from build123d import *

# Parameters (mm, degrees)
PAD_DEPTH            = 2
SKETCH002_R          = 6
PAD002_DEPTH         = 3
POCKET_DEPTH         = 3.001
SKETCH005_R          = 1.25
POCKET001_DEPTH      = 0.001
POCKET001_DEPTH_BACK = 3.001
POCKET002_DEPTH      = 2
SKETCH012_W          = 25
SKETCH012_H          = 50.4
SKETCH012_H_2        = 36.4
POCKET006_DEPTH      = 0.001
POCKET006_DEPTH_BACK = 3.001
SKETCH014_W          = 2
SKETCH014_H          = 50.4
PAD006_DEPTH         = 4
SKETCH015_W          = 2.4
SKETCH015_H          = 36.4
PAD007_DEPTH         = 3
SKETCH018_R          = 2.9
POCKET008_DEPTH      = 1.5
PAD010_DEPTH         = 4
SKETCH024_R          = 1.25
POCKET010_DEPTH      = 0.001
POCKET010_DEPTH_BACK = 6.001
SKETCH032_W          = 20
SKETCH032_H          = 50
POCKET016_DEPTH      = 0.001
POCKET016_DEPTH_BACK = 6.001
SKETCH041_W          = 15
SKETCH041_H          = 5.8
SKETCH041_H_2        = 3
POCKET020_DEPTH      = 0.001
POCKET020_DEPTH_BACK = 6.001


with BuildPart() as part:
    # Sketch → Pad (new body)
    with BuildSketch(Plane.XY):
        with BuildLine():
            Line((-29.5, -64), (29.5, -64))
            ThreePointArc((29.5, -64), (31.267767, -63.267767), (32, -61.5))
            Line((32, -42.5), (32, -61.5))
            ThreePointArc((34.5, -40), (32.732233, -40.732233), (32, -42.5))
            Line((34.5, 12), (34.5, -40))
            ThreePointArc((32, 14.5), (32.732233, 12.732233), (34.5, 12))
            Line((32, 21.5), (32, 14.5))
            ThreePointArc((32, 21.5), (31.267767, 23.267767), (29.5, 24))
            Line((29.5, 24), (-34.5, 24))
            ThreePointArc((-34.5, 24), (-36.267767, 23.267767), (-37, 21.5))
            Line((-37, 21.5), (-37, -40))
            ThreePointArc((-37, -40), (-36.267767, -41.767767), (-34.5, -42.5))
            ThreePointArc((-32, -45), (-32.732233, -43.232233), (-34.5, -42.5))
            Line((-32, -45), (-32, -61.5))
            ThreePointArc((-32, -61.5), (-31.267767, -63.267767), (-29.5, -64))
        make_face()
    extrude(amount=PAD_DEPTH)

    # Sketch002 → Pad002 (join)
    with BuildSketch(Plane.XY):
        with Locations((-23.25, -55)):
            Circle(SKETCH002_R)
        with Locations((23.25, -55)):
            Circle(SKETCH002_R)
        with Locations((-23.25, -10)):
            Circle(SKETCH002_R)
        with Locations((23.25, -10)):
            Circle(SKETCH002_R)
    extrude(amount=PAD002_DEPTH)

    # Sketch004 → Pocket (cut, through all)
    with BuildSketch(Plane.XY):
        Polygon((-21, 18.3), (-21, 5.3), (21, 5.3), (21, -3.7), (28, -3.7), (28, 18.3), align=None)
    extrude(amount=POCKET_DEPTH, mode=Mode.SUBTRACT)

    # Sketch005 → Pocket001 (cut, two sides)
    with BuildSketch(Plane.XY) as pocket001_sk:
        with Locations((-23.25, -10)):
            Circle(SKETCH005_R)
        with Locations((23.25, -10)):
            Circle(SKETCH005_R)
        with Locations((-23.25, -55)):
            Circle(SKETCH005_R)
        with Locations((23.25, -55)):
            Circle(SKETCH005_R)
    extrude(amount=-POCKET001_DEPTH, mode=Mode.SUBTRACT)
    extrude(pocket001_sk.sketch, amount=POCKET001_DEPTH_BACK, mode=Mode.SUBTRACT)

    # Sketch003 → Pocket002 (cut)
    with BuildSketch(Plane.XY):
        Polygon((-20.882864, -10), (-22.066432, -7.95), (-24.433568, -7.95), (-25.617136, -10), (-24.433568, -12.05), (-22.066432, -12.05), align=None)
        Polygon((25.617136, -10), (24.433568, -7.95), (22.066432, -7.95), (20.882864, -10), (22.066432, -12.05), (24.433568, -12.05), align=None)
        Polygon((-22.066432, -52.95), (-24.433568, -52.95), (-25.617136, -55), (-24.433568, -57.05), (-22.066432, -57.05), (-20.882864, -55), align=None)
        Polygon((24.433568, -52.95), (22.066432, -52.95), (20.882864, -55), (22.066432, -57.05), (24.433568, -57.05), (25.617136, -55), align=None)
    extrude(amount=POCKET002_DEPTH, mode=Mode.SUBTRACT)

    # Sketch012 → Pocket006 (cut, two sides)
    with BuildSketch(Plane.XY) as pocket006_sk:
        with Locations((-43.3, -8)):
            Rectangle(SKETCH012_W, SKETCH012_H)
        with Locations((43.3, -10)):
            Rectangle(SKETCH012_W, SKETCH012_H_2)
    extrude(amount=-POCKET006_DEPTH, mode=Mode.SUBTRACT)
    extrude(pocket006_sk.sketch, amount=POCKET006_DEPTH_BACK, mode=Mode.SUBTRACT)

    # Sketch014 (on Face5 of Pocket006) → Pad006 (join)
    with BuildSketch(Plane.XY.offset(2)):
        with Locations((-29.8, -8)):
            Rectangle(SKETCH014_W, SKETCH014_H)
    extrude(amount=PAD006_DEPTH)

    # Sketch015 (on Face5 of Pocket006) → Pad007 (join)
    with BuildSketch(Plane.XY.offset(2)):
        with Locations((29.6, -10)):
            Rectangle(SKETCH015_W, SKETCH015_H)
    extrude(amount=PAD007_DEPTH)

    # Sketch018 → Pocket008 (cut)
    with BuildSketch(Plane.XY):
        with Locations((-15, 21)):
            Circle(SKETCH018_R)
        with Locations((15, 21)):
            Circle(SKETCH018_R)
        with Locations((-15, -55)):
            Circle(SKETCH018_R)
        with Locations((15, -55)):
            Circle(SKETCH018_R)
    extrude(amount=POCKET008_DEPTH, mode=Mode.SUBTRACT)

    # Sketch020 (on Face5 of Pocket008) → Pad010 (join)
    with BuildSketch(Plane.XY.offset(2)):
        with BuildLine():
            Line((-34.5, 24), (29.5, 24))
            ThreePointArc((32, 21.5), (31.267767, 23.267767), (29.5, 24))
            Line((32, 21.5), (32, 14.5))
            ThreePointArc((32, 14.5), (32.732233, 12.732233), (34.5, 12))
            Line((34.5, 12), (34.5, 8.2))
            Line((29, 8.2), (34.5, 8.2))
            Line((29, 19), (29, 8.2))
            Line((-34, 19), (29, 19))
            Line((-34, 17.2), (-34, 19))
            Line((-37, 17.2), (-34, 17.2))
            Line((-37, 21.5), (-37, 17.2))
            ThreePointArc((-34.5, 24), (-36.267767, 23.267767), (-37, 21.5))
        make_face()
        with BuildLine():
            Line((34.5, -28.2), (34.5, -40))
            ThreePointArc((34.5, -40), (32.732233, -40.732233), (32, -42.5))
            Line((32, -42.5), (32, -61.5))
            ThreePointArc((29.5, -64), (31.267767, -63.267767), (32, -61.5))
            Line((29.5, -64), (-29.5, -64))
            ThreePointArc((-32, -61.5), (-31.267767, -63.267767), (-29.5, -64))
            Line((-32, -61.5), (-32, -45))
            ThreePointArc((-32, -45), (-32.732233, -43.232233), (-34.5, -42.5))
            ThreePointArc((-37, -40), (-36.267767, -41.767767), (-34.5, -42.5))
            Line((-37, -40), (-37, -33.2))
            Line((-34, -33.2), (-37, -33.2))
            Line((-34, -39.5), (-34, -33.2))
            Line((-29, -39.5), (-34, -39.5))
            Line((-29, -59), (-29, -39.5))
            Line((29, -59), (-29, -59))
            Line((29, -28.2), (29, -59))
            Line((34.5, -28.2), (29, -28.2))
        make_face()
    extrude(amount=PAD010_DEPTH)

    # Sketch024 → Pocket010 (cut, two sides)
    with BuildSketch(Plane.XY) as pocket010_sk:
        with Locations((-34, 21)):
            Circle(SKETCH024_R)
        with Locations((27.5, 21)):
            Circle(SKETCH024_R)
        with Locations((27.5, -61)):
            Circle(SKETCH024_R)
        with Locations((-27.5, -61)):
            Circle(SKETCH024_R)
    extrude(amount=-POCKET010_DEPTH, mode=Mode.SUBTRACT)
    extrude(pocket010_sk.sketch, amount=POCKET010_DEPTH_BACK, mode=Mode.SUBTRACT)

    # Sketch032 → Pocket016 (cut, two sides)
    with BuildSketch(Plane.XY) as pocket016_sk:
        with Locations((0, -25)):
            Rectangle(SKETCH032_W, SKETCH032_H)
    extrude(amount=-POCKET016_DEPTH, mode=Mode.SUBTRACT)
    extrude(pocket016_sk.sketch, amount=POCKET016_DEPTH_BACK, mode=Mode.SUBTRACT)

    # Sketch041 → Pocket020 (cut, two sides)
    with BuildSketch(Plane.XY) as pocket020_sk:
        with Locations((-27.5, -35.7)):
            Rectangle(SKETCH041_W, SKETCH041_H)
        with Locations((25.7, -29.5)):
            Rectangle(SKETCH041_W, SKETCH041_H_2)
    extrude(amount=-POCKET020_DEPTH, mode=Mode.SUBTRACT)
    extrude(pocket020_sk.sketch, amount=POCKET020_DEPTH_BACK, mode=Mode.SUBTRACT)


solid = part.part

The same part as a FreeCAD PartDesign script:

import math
import FreeCAD as App
import Part
import Sketcher
from FreeCAD import Vector
Q = App.Units.Quantity


def add_polygon(sketch, points):
    """Adds a closed chain of lines whose ends are joined by coincident constraints."""
    first, n = sketch.GeometryCount, len(points)
    for a, b in zip(points, points[1:] + points[:1]):
        sketch.addGeometry(Part.LineSegment(App.Vector(*a, 0), App.Vector(*b, 0)), False)
    for i in range(n):
        sketch.addConstraint(Sketcher.Constraint("Coincident", first + i, 2, first + (i + 1) % n, 1))

doc = App.newDocument("Part")
params = doc.addObject("Spreadsheet::Sheet", "Params")
for row, (alias, value) in enumerate([
    ("sketch1_radius", "2.5 mm"),
    ("sketch1_width", "59 mm"),
    ("sketch1_height", "19 mm"),
    ("sketch1_height2", "52 mm"),
    ("sketch1_height3", "7 mm"),
    ("pad1_length", "2 mm"),
    ("sketch2_diameter", "12 mm"),
    ("pad2_length", "3 mm"),
    ("sketch3_width", "42 mm"),
    ("sketch3_width2", "7 mm"),
    ("sketch3_height", "13 mm"),
    ("sketch3_height2", "9 mm"),
    ("sketch4_diameter", "2.5 mm"),
    ("pocket3_length", "2 mm"),
    ("sketch6_width", "25 mm"),
    ("sketch6_height", "50.4 mm"),
    ("sketch6_height2", "36.4 mm"),
    ("sketch7_width", "2 mm"),
    ("sketch7_height", "50.4 mm"),
    ("pad3_length", "4 mm"),
    ("sketch8_width", "2.4 mm"),
    ("sketch8_height", "36.4 mm"),
    ("pad4_length", "3 mm"),
    ("sketch9_diameter", "5.8 mm"),
    ("pocket5_length", "1.5 mm"),
    ("sketch10_radius", "2.5 mm"),
    ("sketch10_width", "64 mm"),
    ("sketch10_width2", "3 mm"),
    ("sketch10_width3", "63 mm"),
    ("sketch10_width4", "58 mm"),
    ("pad5_length", "4 mm"),
    ("sketch11_diameter", "2.5 mm"),
    ("sketch12_width", "20 mm"),
    ("sketch12_height", "50 mm"),
    ("sketch13_width", "15 mm"),
    ("sketch13_height", "3 mm"),
    ("sketch13_height2", "5.8 mm"),
], start=1):
    params.set(f"A{row}", alias)
    params.set(f"B{row}", "=" + value)
    params.setAlias(f"B{row}", alias)

body = doc.addObject("PartDesign::Body", "Body")

sketch1 = body.newObject("Sketcher::SketchObject", "Sketch")
sketch1.AttachmentSupport = (doc.getObject("XY_Plane"), [""])
sketch1.MapMode = "FlatFace"
sketch1.addGeometry([
    Part.LineSegment(Vector(-29.5, -64, 0), Vector(29.5, -64, 0)),
    Part.ArcOfCircle(Part.Circle(Vector(29.5, -61.5, 0), Vector(0, 0, 1), 2.5), math.radians(-90.000004), math.radians(0.000004)),
    Part.LineSegment(Vector(32, -61.5, 0), Vector(32, -42.5, 0)),
    Part.ArcOfCircle(Part.Circle(Vector(34.5, -42.5, 0), Vector(0, 0, 1), 2.5), math.radians(89.999996), math.radians(180.000004)),
    Part.LineSegment(Vector(34.5, -40, 0), Vector(34.5, 12, 0)),
    Part.ArcOfCircle(Part.Circle(Vector(34.5, 14.5, 0), Vector(0, 0, 1), 2.5), math.radians(179.999996), math.radians(270.000004)),
    Part.LineSegment(Vector(32, 14.5, 0), Vector(32, 21.5, 0)),
    Part.ArcOfCircle(Part.Circle(Vector(29.5, 21.5, 0), Vector(0, 0, 1), 2.5), math.radians(-0.000004), math.radians(90.000004)),
    Part.LineSegment(Vector(29.5, 24, 0), Vector(-34.5, 24, 0)),
    Part.ArcOfCircle(Part.Circle(Vector(-34.5, 21.5, 0), Vector(0, 0, 1), 2.5), math.radians(89.999996), math.radians(180.000004)),
    Part.LineSegment(Vector(-37, 21.5, 0), Vector(-37, -40, 0)),
    Part.ArcOfCircle(Part.Circle(Vector(-34.5, -40, 0), Vector(0, 0, 1), 2.5), math.radians(179.999996), math.radians(270.000004)),
    Part.ArcOfCircle(Part.Circle(Vector(-34.5, -45, 0), Vector(0, 0, 1), 2.5), math.radians(-0.000004), math.radians(90.000004)),
    Part.LineSegment(Vector(-32, -45, 0), Vector(-32, -61.5, 0)),
    Part.ArcOfCircle(Part.Circle(Vector(-29.5, -61.5, 0), Vector(0, 0, 1), 2.5), math.radians(179.999996), math.radians(270.000004)),
], False)
sketch1.addConstraint([
    Sketcher.Constraint("Tangent", 0, 2, 1, 1),
    Sketcher.Constraint("Tangent", 1, 2, 2, 1),
    Sketcher.Constraint("Tangent", 2, 2, 3, 2),
    Sketcher.Constraint("Coincident", 3, 1, 4, 1),
    Sketcher.Constraint("Coincident", 4, 2, 5, 2),
    Sketcher.Constraint("Tangent", 5, 1, 6, 1),
    Sketcher.Constraint("Tangent", 6, 2, 7, 1),
    Sketcher.Constraint("Tangent", 7, 2, 8, 1),
    Sketcher.Constraint("Tangent", 8, 2, 9, 1),
    Sketcher.Constraint("Tangent", 9, 2, 10, 1),
    Sketcher.Constraint("Tangent", 10, 2, 11, 1),
    Sketcher.Constraint("Tangent", 11, 2, 12, 2),
    Sketcher.Constraint("Tangent", 12, 1, 13, 1),
    Sketcher.Constraint("Tangent", 13, 2, 14, 1),
    Sketcher.Constraint("Tangent", 14, 2, 0, 1),
    Sketcher.Constraint("Horizontal", 0),
    Sketcher.Constraint("Vertical", 2),
    Sketcher.Constraint("Vertical", 4),
    Sketcher.Constraint("Vertical", 6),
    Sketcher.Constraint("Horizontal", 8),
    Sketcher.Constraint("Vertical", 10),
    Sketcher.Constraint("Vertical", 13),
    Sketcher.Constraint("Equal", 1, 3),
    Sketcher.Constraint("Equal", 3, 5),
    Sketcher.Constraint("Equal", 5, 7),
    Sketcher.Constraint("Equal", 7, 9),
    Sketcher.Constraint("Equal", 9, 11),
    Sketcher.Constraint("Equal", 11, 12),
    Sketcher.Constraint("Equal", 12, 14),
    Sketcher.Constraint("Horizontal", 11, 3, 3, 1),
    Sketcher.Constraint("Vertical", 3, 3, 5, 3),
    Sketcher.Constraint("Vertical", 11, 3, 12, 3),
    Sketcher.Constraint("Vertical", 5, 3, 3, 1),
    Sketcher.Constraint("Radius", 1, Q("2.5 mm")),
    Sketcher.Constraint("DistanceX", 0, 1, 0, 2, Q("59 mm")),
    Sketcher.Constraint("DistanceY", 2, 1, 2, 2, Q("19 mm")),
    Sketcher.Constraint("DistanceY", 4, 1, 4, 2, Q("52 mm")),
    Sketcher.Constraint("DistanceY", 6, 1, 6, 2, Q("7 mm")),
    Sketcher.Constraint("DistanceY", 11, 3, -1, 1, Q("40 mm")),
    Sketcher.Constraint("DistanceX", -1, 1, 1, 2, Q("32 mm")),
])
sketch1.setExpression("Constraints[33]", "Params.sketch1_radius")
sketch1.setExpression("Constraints[34]", "Params.sketch1_width")
sketch1.setExpression("Constraints[35]", "Params.sketch1_height")
sketch1.setExpression("Constraints[36]", "Params.sketch1_height2")
sketch1.setExpression("Constraints[37]", "Params.sketch1_height3")
pad1 = body.newObject("PartDesign::Pad", "Pad")
pad1.Profile = sketch1
pad1.setExpression("Length", "Params.pad1_length")

sketch2 = body.newObject("Sketcher::SketchObject", "Sketch001")
sketch2.AttachmentSupport = (doc.getObject("XY_Plane"), [""])
sketch2.MapMode = "FlatFace"
sketch2.addGeometry([
    Part.Circle(Vector(-23.25, -55, 0), Vector(0, 0, 1), 6),
    Part.Circle(Vector(23.25, -55, 0), Vector(0, 0, 1), 6),
    Part.Circle(Vector(-23.25, -10, 0), Vector(0, 0, 1), 6),
    Part.Circle(Vector(23.25, -10, 0), Vector(0, 0, 1), 6),
], False)
sketch2.addConstraint([
    Sketcher.Constraint("Equal", 0, 1),
    Sketcher.Constraint("Equal", 1, 2),
    Sketcher.Constraint("Equal", 2, 3),
    Sketcher.Constraint("Symmetric", 0, 3, 1, 3, -2),
    Sketcher.Constraint("Symmetric", 2, 3, 3, 3, -2),
    Sketcher.Constraint("Vertical", 0, 3, 2, 3),
    Sketcher.Constraint("Diameter", 0, Q("12 mm")),
    Sketcher.Constraint("DistanceY", 0, 3, -1, 1, Q("55 mm")),
    Sketcher.Constraint("DistanceY", 2, 3, -1, 1, Q("10 mm")),
    Sketcher.Constraint("DistanceX", 0, 3, 1, 3, Q("46.5 mm")),
])
sketch2.setExpression("Constraints[6]", "Params.sketch2_diameter")
pad2 = body.newObject("PartDesign::Pad", "Pad001")
pad2.Profile = sketch2
pad2.setExpression("Length", "Params.pad2_length")

sketch3 = body.newObject("Sketcher::SketchObject", "Sketch002")
sketch3.AttachmentSupport = (doc.getObject("XY_Plane"), [""])
sketch3.MapMode = "FlatFace"
add_polygon(sketch3, [(-21, 18.3), (-21, 5.3), (21, 5.3), (21, -3.7), (28, -3.7), (28, 18.3)])
sketch3.addConstraint([
    Sketcher.Constraint("Vertical", 0),
    Sketcher.Constraint("Horizontal", 1),
    Sketcher.Constraint("Vertical", 2),
    Sketcher.Constraint("Horizontal", 3),
    Sketcher.Constraint("Vertical", 4),
    Sketcher.Constraint("Horizontal", 5),
    Sketcher.Constraint("DistanceX", 1, 1, 1, 2, Q("42 mm")),
    Sketcher.Constraint("DistanceX", 3, 1, 3, 2, Q("7 mm")),
    Sketcher.Constraint("DistanceY", 0, 2, 0, 1, Q("13 mm")),
    Sketcher.Constraint("DistanceY", 2, 2, 2, 1, Q("9 mm")),
    Sketcher.Constraint("DistanceX", 0, 2, -1, 1, Q("21 mm")),
    Sketcher.Constraint("DistanceY", -1, 1, 0, 2, Q("5.3 mm")),
])
sketch3.setExpression("Constraints[12]", "Params.sketch3_width")
sketch3.setExpression("Constraints[13]", "Params.sketch3_width2")
sketch3.setExpression("Constraints[14]", "Params.sketch3_height")
sketch3.setExpression("Constraints[15]", "Params.sketch3_height2")
pocket1 = body.newObject("PartDesign::Pocket", "Pocket")
pocket1.Profile = sketch3
pocket1.Type = "ThroughAll"
pocket1.Reversed = True

sketch4 = body.newObject("Sketcher::SketchObject", "Sketch003")
sketch4.AttachmentSupport = (doc.getObject("XY_Plane"), [""])
sketch4.MapMode = "FlatFace"
sketch4.addGeometry([
    Part.Circle(Vector(-23.25, -10, 0), Vector(0, 0, 1), 1.25),
    Part.Circle(Vector(23.25, -10, 0), Vector(0, 0, 1), 1.25),
    Part.Circle(Vector(-23.25, -55, 0), Vector(0, 0, 1), 1.25),
    Part.Circle(Vector(23.25, -55, 0), Vector(0, 0, 1), 1.25),
], False)
sketch4.addConstraint([
    Sketcher.Constraint("Equal", 0, 1),
    Sketcher.Constraint("Equal", 1, 2),
    Sketcher.Constraint("Equal", 2, 3),
    Sketcher.Constraint("Symmetric", 0, 3, 1, 3, -2),
    Sketcher.Constraint("Symmetric", 2, 3, 3, 3, -2),
    Sketcher.Constraint("Vertical", 0, 3, 2, 3),
    Sketcher.Constraint("Diameter", 0, Q("2.5 mm")),
    Sketcher.Constraint("DistanceY", 0, 3, -1, 1, Q("10 mm")),
    Sketcher.Constraint("DistanceY", 2, 3, -1, 1, Q("55 mm")),
    Sketcher.Constraint("DistanceX", 0, 3, 1, 3, Q("46.5 mm")),
])
sketch4.setExpression("Constraints[6]", "Params.sketch4_diameter")
pocket2 = body.newObject("PartDesign::Pocket", "Pocket001")
pocket2.Profile = sketch4
pocket2.Type = "ThroughAll"
pocket2.Midplane = True

sketch5 = body.newObject("Sketcher::SketchObject", "Sketch004")
sketch5.AttachmentSupport = (doc.getObject("XY_Plane"), [""])
sketch5.MapMode = "FlatFace"
add_polygon(sketch5, [(-20.882864, -10), (-22.066432, -7.95), (-24.433568, -7.95), (-25.617136, -10), (-24.433568, -12.05), (-22.066432, -12.05)])
add_polygon(sketch5, [(25.617136, -10), (24.433568, -7.95), (22.066432, -7.95), (20.882864, -10), (22.066432, -12.05), (24.433568, -12.05)])
add_polygon(sketch5, [(-22.066432, -52.95), (-24.433568, -52.95), (-25.617136, -55), (-24.433568, -57.05), (-22.066432, -57.05), (-20.882864, -55)])
add_polygon(sketch5, [(24.433568, -52.95), (22.066432, -52.95), (20.882864, -55), (22.066432, -57.05), (24.433568, -57.05), (25.617136, -55)])
sketch5.addConstraint([
    Sketcher.Constraint("Horizontal", 1),
    Sketcher.Constraint("Horizontal", 4),
    Sketcher.Constraint("Horizontal", 7),
    Sketcher.Constraint("Horizontal", 10),
    Sketcher.Constraint("Horizontal", 12),
    Sketcher.Constraint("Horizontal", 15),
    Sketcher.Constraint("Horizontal", 18),
    Sketcher.Constraint("Horizontal", 21),
    Sketcher.Constraint("Symmetric", 1, 2, 6, 2, -2),
    Sketcher.Constraint("Symmetric", 5, 2, 8, 2, -2),
    Sketcher.Constraint("Symmetric", 4, 2, 9, 2, -2),
    Sketcher.Constraint("Symmetric", 2, 2, 11, 2, -2),
    Sketcher.Constraint("Symmetric", 17, 2, 18, 2, -2),
    Sketcher.Constraint("Symmetric", 16, 2, 19, 2, -2),
    Sketcher.Constraint("Symmetric", 15, 2, 20, 2, -2),
    Sketcher.Constraint("Symmetric", 13, 2, 22, 2, -2),
    Sketcher.Constraint("Parallel", 0, 3),
    Sketcher.Constraint("Parallel", 2, 5),
    Sketcher.Constraint("Parallel", 3, 6),
    Sketcher.Constraint("Parallel", 5, 8),
    Sketcher.Constraint("Parallel", 8, 11),
    Sketcher.Constraint("Parallel", 11, 13),
    Sketcher.Constraint("Parallel", 9, 14),
    Sketcher.Constraint("Parallel", 13, 16),
    Sketcher.Constraint("Parallel", 14, 17),
    Sketcher.Constraint("Parallel", 19, 22),
    Sketcher.Constraint("Parallel", 20, 23),
    Sketcher.Constraint("Horizontal", 2, 2, 5, 2),
    Sketcher.Constraint("Horizontal", 13, 2, 16, 2),
    Sketcher.Constraint("Vertical", 1, 2, 3, 2),
    Sketcher.Constraint("Vertical", 3, 2, 12, 2),
    Sketcher.Constraint("Vertical", 2, 2, 13, 2),
    Sketcher.Constraint("Vertical", 12, 2, 14, 2),
    Sketcher.Constraint("Vertical", 4, 2, 15, 2),
    Sketcher.Constraint("Angle", 0, Q("119.999999 deg")),
    Sketcher.Constraint("DistanceY", 2, 2, -1, 1, Q("10 mm")),
    Sketcher.Constraint("DistanceY", 13, 2, -1, 1, Q("55 mm")),
    Sketcher.Constraint("DistanceY", 3, 2, 1, 2, Q("4.1 mm")),
    Sketcher.Constraint("DistanceX", 0, 2, 6, 2, Q("46.5 mm")),
    Sketcher.Constraint("DistanceX", 1, 2, 1, 1, Q("2.367136 mm")),
])
pocket3 = body.newObject("PartDesign::Pocket", "Pocket002")
pocket3.Profile = sketch5
pocket3.setExpression("Length", "Params.pocket3_length")
pocket3.Reversed = True

sketch6 = body.newObject("Sketcher::SketchObject", "Sketch005")
sketch6.AttachmentSupport = (doc.getObject("XY_Plane"), [""])
sketch6.MapMode = "FlatFace"
add_polygon(sketch6, [(-55.8, 17.2), (-55.8, -33.2), (-30.8, -33.2), (-30.8, 17.2)])
add_polygon(sketch6, [(30.8, 8.2), (30.8, -28.2), (55.8, -28.2), (55.8, 8.2)])
sketch6.addConstraint([
    Sketcher.Constraint("Vertical", 0),
    Sketcher.Constraint("Horizontal", 1),
    Sketcher.Constraint("Vertical", 2),
    Sketcher.Constraint("Horizontal", 3),
    Sketcher.Constraint("Vertical", 4),
    Sketcher.Constraint("Horizontal", 5),
    Sketcher.Constraint("Vertical", 6),
    Sketcher.Constraint("Horizontal", 7),
    Sketcher.Constraint("Equal", 3, 5),
    Sketcher.Constraint("DistanceX", 1, 1, 1, 2, Q("25 mm")),
    Sketcher.Constraint("DistanceY", 0, 2, 0, 1, Q("50.4 mm")),
    Sketcher.Constraint("DistanceY", 4, 2, 4, 1, Q("36.4 mm")),
    Sketcher.Constraint("DistanceY", 1, 2, 4, 2, Q("5 mm")),
    Sketcher.Constraint("DistanceX", 0, 2, -1, 1, Q("55.8 mm")),
    Sketcher.Constraint("DistanceY", 0, 2, -1, 1, Q("33.2 mm")),
    Sketcher.Constraint("DistanceX", -1, 1, 4, 2, Q("30.8 mm")),
])
sketch6.setExpression("Constraints[17]", "Params.sketch6_width")
sketch6.setExpression("Constraints[18]", "Params.sketch6_height")
sketch6.setExpression("Constraints[19]", "Params.sketch6_height2")
pocket4 = body.newObject("PartDesign::Pocket", "Pocket003")
pocket4.Profile = sketch6
pocket4.Type = "ThroughAll"
pocket4.Midplane = True

sketch7 = body.newObject("Sketcher::SketchObject", "Sketch006")
sketch7.AttachmentSupport = (doc.getObject("XY_Plane"), [""])
sketch7.MapMode = "FlatFace"
sketch7.AttachmentOffset = App.Placement(Vector(0, 0, 2), App.Rotation())
add_polygon(sketch7, [(-30.8, 17.2), (-30.8, -33.2), (-28.8, -33.2), (-28.8, 17.2)])
sketch7.addConstraint([
    Sketcher.Constraint("Vertical", 0),
    Sketcher.Constraint("Horizontal", 1),
    Sketcher.Constraint("Vertical", 2),
    Sketcher.Constraint("Horizontal", 3),
    Sketcher.Constraint("DistanceX", 1, 1, 1, 2, Q("2 mm")),
    Sketcher.Constraint("DistanceY", 0, 2, 0, 1, Q("50.4 mm")),
    Sketcher.Constraint("DistanceX", 0, 2, -1, 1, Q("30.8 mm")),
    Sketcher.Constraint("DistanceY", 0, 2, -1, 1, Q("33.2 mm")),
])
sketch7.setExpression("Constraints[8]", "Params.sketch7_width")
sketch7.setExpression("Constraints[9]", "Params.sketch7_height")
pad3 = body.newObject("PartDesign::Pad", "Pad002")
pad3.Profile = sketch7
pad3.setExpression("Length", "Params.pad3_length")

sketch8 = body.newObject("Sketcher::SketchObject", "Sketch007")
sketch8.AttachmentSupport = (doc.getObject("XY_Plane"), [""])
sketch8.MapMode = "FlatFace"
sketch8.AttachmentOffset = App.Placement(Vector(0, 0, 2), App.Rotation())
add_polygon(sketch8, [(28.4, 8.2), (28.4, -28.2), (30.8, -28.2), (30.8, 8.2)])
sketch8.addConstraint([
    Sketcher.Constraint("Vertical", 0),
    Sketcher.Constraint("Horizontal", 1),
    Sketcher.Constraint("Vertical", 2),
    Sketcher.Constraint("Horizontal", 3),
    Sketcher.Constraint("DistanceX", 1, 1, 1, 2, Q("2.4 mm")),
    Sketcher.Constraint("DistanceY", 0, 2, 0, 1, Q("36.4 mm")),
    Sketcher.Constraint("DistanceX", -1, 1, 0, 2, Q("28.4 mm")),
    Sketcher.Constraint("DistanceY", 0, 2, -1, 1, Q("28.2 mm")),
])
sketch8.setExpression("Constraints[8]", "Params.sketch8_width")
sketch8.setExpression("Constraints[9]", "Params.sketch8_height")
pad4 = body.newObject("PartDesign::Pad", "Pad003")
pad4.Profile = sketch8
pad4.setExpression("Length", "Params.pad4_length")

sketch9 = body.newObject("Sketcher::SketchObject", "Sketch008")
sketch9.AttachmentSupport = (doc.getObject("XY_Plane"), [""])
sketch9.MapMode = "FlatFace"
sketch9.addGeometry([
    Part.Circle(Vector(-15, 21, 0), Vector(0, 0, 1), 2.9),
    Part.Circle(Vector(15, 21, 0), Vector(0, 0, 1), 2.9),
    Part.Circle(Vector(-15, -55, 0), Vector(0, 0, 1), 2.9),
    Part.Circle(Vector(15, -55, 0), Vector(0, 0, 1), 2.9),
], False)
sketch9.addConstraint([
    Sketcher.Constraint("Equal", 0, 1),
    Sketcher.Constraint("Equal", 1, 2),
    Sketcher.Constraint("Equal", 2, 3),
    Sketcher.Constraint("Symmetric", 0, 3, 1, 3, -2),
    Sketcher.Constraint("Symmetric", 2, 3, 3, 3, -2),
    Sketcher.Constraint("Vertical", 0, 3, 2, 3),
    Sketcher.Constraint("Diameter", 0, Q("5.8 mm")),
    Sketcher.Constraint("DistanceX", 0, 3, -1, 1, Q("15 mm")),
    Sketcher.Constraint("DistanceY", -1, 1, 0, 3, Q("21 mm")),
    Sketcher.Constraint("DistanceY", 2, 3, -1, 1, Q("55 mm")),
])
sketch9.setExpression("Constraints[6]", "Params.sketch9_diameter")
pocket5 = body.newObject("PartDesign::Pocket", "Pocket004")
pocket5.Profile = sketch9
pocket5.setExpression("Length", "Params.pocket5_length")
pocket5.Reversed = True

sketch10 = body.newObject("Sketcher::SketchObject", "Sketch009")
sketch10.AttachmentSupport = (doc.getObject("XY_Plane"), [""])
sketch10.MapMode = "FlatFace"
sketch10.AttachmentOffset = App.Placement(Vector(0, 0, 2), App.Rotation())
sketch10.addGeometry([
    Part.LineSegment(Vector(29.5, 24, 0), Vector(-34.5, 24, 0)),
    Part.ArcOfCircle(Part.Circle(Vector(-34.5, 21.5, 0), Vector(0, 0, 1), 2.5), math.radians(89.999996), math.radians(180.000004)),
    Part.LineSegment(Vector(-37, 21.5, 0), Vector(-37, 17.2, 0)),
    Part.LineSegment(Vector(-37, 17.2, 0), Vector(-34, 17.2, 0)),
    Part.LineSegment(Vector(-34, 17.2, 0), Vector(-34, 19, 0)),
    Part.LineSegment(Vector(-34, 19, 0), Vector(29, 19, 0)),
    Part.LineSegment(Vector(29, 19, 0), Vector(29, 8.2, 0)),
    Part.LineSegment(Vector(29, 8.2, 0), Vector(34.5, 8.2, 0)),
    Part.LineSegment(Vector(34.5, 8.2, 0), Vector(34.5, 12, 0)),
    Part.ArcOfCircle(Part.Circle(Vector(34.5, 14.5, 0), Vector(0, 0, 1), 2.5), math.radians(179.999996), math.radians(270.000004)),
    Part.LineSegment(Vector(32, 14.5, 0), Vector(32, 21.5, 0)),
    Part.ArcOfCircle(Part.Circle(Vector(29.5, 21.5, 0), Vector(0, 0, 1), 2.5), math.radians(-0.000004), math.radians(90.000004)),
    Part.LineSegment(Vector(34.5, -40, 0), Vector(34.5, -28.2, 0)),
    Part.LineSegment(Vector(34.5, -28.2, 0), Vector(29, -28.2, 0)),
    Part.LineSegment(Vector(29, -28.2, 0), Vector(29, -59, 0)),
    Part.LineSegment(Vector(29, -59, 0), Vector(-29, -59, 0)),
    Part.LineSegment(Vector(-29, -59, 0), Vector(-29, -39.5, 0)),
    Part.LineSegment(Vector(-29, -39.5, 0), Vector(-34, -39.5, 0)),
    Part.LineSegment(Vector(-34, -39.5, 0), Vector(-34, -33.2, 0)),
    Part.LineSegment(Vector(-34, -33.2, 0), Vector(-37, -33.2, 0)),
    Part.LineSegment(Vector(-37, -33.2, 0), Vector(-37, -40, 0)),
    Part.ArcOfCircle(Part.Circle(Vector(-34.5, -40, 0), Vector(0, 0, 1), 2.5), math.radians(179.999996), math.radians(270.000004)),
    Part.ArcOfCircle(Part.Circle(Vector(-34.5, -45, 0), Vector(0, 0, 1), 2.5), math.radians(-0.000004), math.radians(90.000004)),
    Part.LineSegment(Vector(-32, -45, 0), Vector(-32, -61.5, 0)),
    Part.ArcOfCircle(Part.Circle(Vector(-29.5, -61.5, 0), Vector(0, 0, 1), 2.5), math.radians(179.999996), math.radians(270.000004)),
    Part.LineSegment(Vector(-29.5, -64, 0), Vector(29.5, -64, 0)),
    Part.ArcOfCircle(Part.Circle(Vector(29.5, -61.5, 0), Vector(0, 0, 1), 2.5), math.radians(-90.000004), math.radians(0.000004)),
    Part.LineSegment(Vector(32, -61.5, 0), Vector(32, -42.5, 0)),
    Part.ArcOfCircle(Part.Circle(Vector(34.5, -42.5, 0), Vector(0, 0, 1), 2.5), math.radians(89.999996), math.radians(180.000004)),
], False)
sketch10.addConstraint([
    Sketcher.Constraint("Tangent", 0, 2, 1, 1),
    Sketcher.Constraint("Tangent", 1, 2, 2, 1),
    Sketcher.Constraint("Coincident", 2, 2, 3, 1),
    Sketcher.Constraint("Coincident", 3, 2, 4, 1),
    Sketcher.Constraint("Coincident", 4, 2, 5, 1),
    Sketcher.Constraint("Coincident", 5, 2, 6, 1),
    Sketcher.Constraint("Coincident", 6, 2, 7, 1),
    Sketcher.Constraint("Coincident", 7, 2, 8, 1),
    Sketcher.Constraint("Coincident", 8, 2, 9, 2),
    Sketcher.Constraint("Tangent", 9, 1, 10, 1),
    Sketcher.Constraint("Tangent", 10, 2, 11, 1),
    Sketcher.Constraint("Tangent", 11, 2, 0, 1),
    Sketcher.Constraint("Coincident", 12, 2, 13, 1),
    Sketcher.Constraint("Coincident", 13, 2, 14, 1),
    Sketcher.Constraint("Coincident", 14, 2, 15, 1),
    Sketcher.Constraint("Coincident", 15, 2, 16, 1),
    Sketcher.Constraint("Coincident", 16, 2, 17, 1),
    Sketcher.Constraint("Coincident", 17, 2, 18, 1),
    Sketcher.Constraint("Coincident", 18, 2, 19, 1),
    Sketcher.Constraint("Coincident", 19, 2, 20, 1),
    Sketcher.Constraint("Tangent", 20, 2, 21, 1),
    Sketcher.Constraint("Tangent", 21, 2, 22, 2),
    Sketcher.Constraint("Tangent", 22, 1, 23, 1),
    Sketcher.Constraint("Tangent", 23, 2, 24, 1),
    Sketcher.Constraint("Tangent", 24, 2, 25, 1),
    Sketcher.Constraint("Tangent", 25, 2, 26, 1),
    Sketcher.Constraint("Tangent", 26, 2, 27, 1),
    Sketcher.Constraint("Tangent", 27, 2, 28, 2),
    Sketcher.Constraint("Coincident", 28, 1, 12, 1),
    Sketcher.Constraint("Horizontal", 0),
    Sketcher.Constraint("Vertical", 2),
    Sketcher.Constraint("Horizontal", 3),
    Sketcher.Constraint("Vertical", 4),
    Sketcher.Constraint("Horizontal", 5),
    Sketcher.Constraint("Vertical", 6),
    Sketcher.Constraint("Horizontal", 7),
    Sketcher.Constraint("Vertical", 8),
    Sketcher.Constraint("Vertical", 10),
    Sketcher.Constraint("Vertical", 12),
    Sketcher.Constraint("Horizontal", 13),
    Sketcher.Constraint("Vertical", 14),
    Sketcher.Constraint("Horizontal", 15),
    Sketcher.Constraint("Vertical", 16),
    Sketcher.Constraint("Horizontal", 17),
    Sketcher.Constraint("Vertical", 18),
    Sketcher.Constraint("Horizontal", 19),
    Sketcher.Constraint("Vertical", 20),
    Sketcher.Constraint("Vertical", 23),
    Sketcher.Constraint("Horizontal", 25),
    Sketcher.Constraint("Vertical", 27),
    Sketcher.Constraint("Equal", 1, 9),
    Sketcher.Constraint("Equal", 9, 11),
    Sketcher.Constraint("Equal", 11, 21),
    Sketcher.Constraint("Equal", 21, 22),
    Sketcher.Constraint("Equal", 22, 24),
    Sketcher.Constraint("Equal", 24, 26),
    Sketcher.Constraint("Equal", 26, 28),
    Sketcher.Constraint("Horizontal", 28, 3, 21, 2),
    Sketcher.Constraint("Vertical", 1, 3, 21, 3),
    Sketcher.Constraint("Vertical", 21, 3, 22, 3),
    Sketcher.Constraint("Vertical", 11, 3, 26, 3),
    Sketcher.Constraint("Vertical", 28, 3, 7, 2),
    Sketcher.Constraint("Vertical", 8, 2, 12, 2),
    Sketcher.Constraint("Vertical", 6, 2, 13, 2),
    Sketcher.Constraint("Vertical", 4, 2, 17, 2),
    Sketcher.Constraint("Radius", 1, Q("2.5 mm")),
    Sketcher.Constraint("DistanceX", 0, 2, 0, 1, Q("64 mm")),
    Sketcher.Constraint("DistanceX", 3, 1, 3, 2, Q("3 mm")),
    Sketcher.Constraint("DistanceX", 5, 1, 5, 2, Q("63 mm")),
    Sketcher.Constraint("DistanceX", 15, 2, 15, 1, Q("58 mm")),
    Sketcher.Constraint("DistanceY", 10, 1, 10, 2, Q("7 mm")),
    Sketcher.Constraint("DistanceY", 27, 1, 27, 2, Q("19 mm")),
    Sketcher.Constraint("DistanceY", 2, 2, 2, 1, Q("4.3 mm")),
    Sketcher.Constraint("DistanceY", 4, 1, 4, 2, Q("1.8 mm")),
    Sketcher.Constraint("DistanceY", 6, 2, 6, 1, Q("10.8 mm")),
    Sketcher.Constraint("DistanceY", 12, 1, 12, 2, Q("11.8 mm")),
    Sketcher.Constraint("DistanceY", 14, 2, 14, 1, Q("30.8 mm")),
    Sketcher.Constraint("DistanceY", 16, 1, 16, 2, Q("19.5 mm")),
    Sketcher.Constraint("DistanceY", 18, 1, 18, 2, Q("6.3 mm")),
    Sketcher.Constraint("DistanceY", 21, 3, -1, 1, Q("40 mm")),
    Sketcher.Constraint("DistanceY", -1, 1, 0, 2, Q("24 mm")),
    Sketcher.Constraint("DistanceX", 1, 2, -1, 1, Q("37 mm")),
])
sketch10.setExpression("Constraints[65]", "Params.sketch10_radius")
sketch10.setExpression("Constraints[66]", "Params.sketch10_width")
sketch10.setExpression("Constraints[67]", "Params.sketch10_width2")
sketch10.setExpression("Constraints[68]", "Params.sketch10_width3")
sketch10.setExpression("Constraints[69]", "Params.sketch10_width4")
pad5 = body.newObject("PartDesign::Pad", "Pad004")
pad5.Profile = sketch10
pad5.setExpression("Length", "Params.pad5_length")

sketch11 = body.newObject("Sketcher::SketchObject", "Sketch010")
sketch11.AttachmentSupport = (doc.getObject("XY_Plane"), [""])
sketch11.MapMode = "FlatFace"
sketch11.addGeometry([
    Part.Circle(Vector(-34, 21, 0), Vector(0, 0, 1), 1.25),
    Part.Circle(Vector(27.5, 21, 0), Vector(0, 0, 1), 1.25),
    Part.Circle(Vector(27.5, -61, 0), Vector(0, 0, 1), 1.25),
    Part.Circle(Vector(-27.5, -61, 0), Vector(0, 0, 1), 1.25),
], False)
sketch11.addConstraint([
    Sketcher.Constraint("Equal", 0, 1),
    Sketcher.Constraint("Equal", 1, 2),
    Sketcher.Constraint("Equal", 2, 3),
    Sketcher.Constraint("Symmetric", 2, 3, 3, 3, -2),
    Sketcher.Constraint("Horizontal", 0, 3, 1, 3),
    Sketcher.Constraint("Vertical", 1, 3, 2, 3),
    Sketcher.Constraint("Diameter", 0, Q("2.5 mm")),
    Sketcher.Constraint("DistanceX", 0, 3, -1, 1, Q("34 mm")),
    Sketcher.Constraint("DistanceY", -1, 1, 0, 3, Q("21 mm")),
    Sketcher.Constraint("DistanceY", 2, 3, -1, 1, Q("61 mm")),
    Sketcher.Constraint("DistanceX", 3, 3, 2, 3, Q("55 mm")),
])
sketch11.setExpression("Constraints[6]", "Params.sketch11_diameter")
pocket6 = body.newObject("PartDesign::Pocket", "Pocket005")
pocket6.Profile = sketch11
pocket6.Type = "ThroughAll"
pocket6.Midplane = True

sketch12 = body.newObject("Sketcher::SketchObject", "Sketch011")
sketch12.AttachmentSupport = (doc.getObject("XY_Plane"), [""])
sketch12.MapMode = "FlatFace"
add_polygon(sketch12, [(-10, 0), (-10, -50), (10, -50), (10, 0)])
sketch12.addConstraint([
    Sketcher.Constraint("Vertical", 0),
    Sketcher.Constraint("Horizontal", 1),
    Sketcher.Constraint("Vertical", 2),
    Sketcher.Constraint("Horizontal", 3),
    Sketcher.Constraint("Symmetric", 2, 2, 3, 2, -1, 1),
    Sketcher.Constraint("DistanceX", 1, 1, 1, 2, Q("20 mm")),
    Sketcher.Constraint("DistanceY", 0, 2, 0, 1, Q("50 mm")),
])
sketch12.setExpression("Constraints[9]", "Params.sketch12_width")
sketch12.setExpression("Constraints[10]", "Params.sketch12_height")
pocket7 = body.newObject("PartDesign::Pocket", "Pocket006")
pocket7.Profile = sketch12
pocket7.Type = "ThroughAll"
pocket7.Midplane = True

sketch13 = body.newObject("Sketcher::SketchObject", "Sketch012")
sketch13.AttachmentSupport = (doc.getObject("XY_Plane"), [""])
sketch13.MapMode = "FlatFace"
add_polygon(sketch13, [(-35, -32.8), (-35, -38.6), (-20, -38.6), (-20, -32.8)])
add_polygon(sketch13, [(18.2, -28), (18.2, -31), (33.2, -31), (33.2, -28)])
sketch13.addConstraint([
    Sketcher.Constraint("Vertical", 0),
    Sketcher.Constraint("Horizontal", 1),
    Sketcher.Constraint("Vertical", 2),
    Sketcher.Constraint("Horizontal", 3),
    Sketcher.Constraint("Vertical", 4),
    Sketcher.Constraint("Horizontal", 5),
    Sketcher.Constraint("Vertical", 6),
    Sketcher.Constraint("Horizontal", 7),
    Sketcher.Constraint("Equal", 3, 5),
    Sketcher.Constraint("DistanceX", 1, 1, 1, 2, Q("15 mm")),
    Sketcher.Constraint("DistanceY", 4, 2, 4, 1, Q("3 mm")),
    Sketcher.Constraint("DistanceY", 0, 2, 0, 1, Q("5.8 mm")),
    Sketcher.Constraint("DistanceX", 0, 2, -1, 1, Q("35 mm")),
    Sketcher.Constraint("DistanceY", 4, 2, -1, 1, Q("31 mm")),
    Sketcher.Constraint("DistanceY", 0, 2, -1, 1, Q("38.6 mm")),
    Sketcher.Constraint("DistanceX", -1, 1, 4, 2, Q("18.2 mm")),
])
sketch13.setExpression("Constraints[17]", "Params.sketch13_width")
sketch13.setExpression("Constraints[18]", "Params.sketch13_height")
sketch13.setExpression("Constraints[19]", "Params.sketch13_height2")
pocket8 = body.newObject("PartDesign::Pocket", "Pocket007")
pocket8.Profile = sketch13
pocket8.Type = "ThroughAll"
pocket8.Midplane = True

doc.recompute()
